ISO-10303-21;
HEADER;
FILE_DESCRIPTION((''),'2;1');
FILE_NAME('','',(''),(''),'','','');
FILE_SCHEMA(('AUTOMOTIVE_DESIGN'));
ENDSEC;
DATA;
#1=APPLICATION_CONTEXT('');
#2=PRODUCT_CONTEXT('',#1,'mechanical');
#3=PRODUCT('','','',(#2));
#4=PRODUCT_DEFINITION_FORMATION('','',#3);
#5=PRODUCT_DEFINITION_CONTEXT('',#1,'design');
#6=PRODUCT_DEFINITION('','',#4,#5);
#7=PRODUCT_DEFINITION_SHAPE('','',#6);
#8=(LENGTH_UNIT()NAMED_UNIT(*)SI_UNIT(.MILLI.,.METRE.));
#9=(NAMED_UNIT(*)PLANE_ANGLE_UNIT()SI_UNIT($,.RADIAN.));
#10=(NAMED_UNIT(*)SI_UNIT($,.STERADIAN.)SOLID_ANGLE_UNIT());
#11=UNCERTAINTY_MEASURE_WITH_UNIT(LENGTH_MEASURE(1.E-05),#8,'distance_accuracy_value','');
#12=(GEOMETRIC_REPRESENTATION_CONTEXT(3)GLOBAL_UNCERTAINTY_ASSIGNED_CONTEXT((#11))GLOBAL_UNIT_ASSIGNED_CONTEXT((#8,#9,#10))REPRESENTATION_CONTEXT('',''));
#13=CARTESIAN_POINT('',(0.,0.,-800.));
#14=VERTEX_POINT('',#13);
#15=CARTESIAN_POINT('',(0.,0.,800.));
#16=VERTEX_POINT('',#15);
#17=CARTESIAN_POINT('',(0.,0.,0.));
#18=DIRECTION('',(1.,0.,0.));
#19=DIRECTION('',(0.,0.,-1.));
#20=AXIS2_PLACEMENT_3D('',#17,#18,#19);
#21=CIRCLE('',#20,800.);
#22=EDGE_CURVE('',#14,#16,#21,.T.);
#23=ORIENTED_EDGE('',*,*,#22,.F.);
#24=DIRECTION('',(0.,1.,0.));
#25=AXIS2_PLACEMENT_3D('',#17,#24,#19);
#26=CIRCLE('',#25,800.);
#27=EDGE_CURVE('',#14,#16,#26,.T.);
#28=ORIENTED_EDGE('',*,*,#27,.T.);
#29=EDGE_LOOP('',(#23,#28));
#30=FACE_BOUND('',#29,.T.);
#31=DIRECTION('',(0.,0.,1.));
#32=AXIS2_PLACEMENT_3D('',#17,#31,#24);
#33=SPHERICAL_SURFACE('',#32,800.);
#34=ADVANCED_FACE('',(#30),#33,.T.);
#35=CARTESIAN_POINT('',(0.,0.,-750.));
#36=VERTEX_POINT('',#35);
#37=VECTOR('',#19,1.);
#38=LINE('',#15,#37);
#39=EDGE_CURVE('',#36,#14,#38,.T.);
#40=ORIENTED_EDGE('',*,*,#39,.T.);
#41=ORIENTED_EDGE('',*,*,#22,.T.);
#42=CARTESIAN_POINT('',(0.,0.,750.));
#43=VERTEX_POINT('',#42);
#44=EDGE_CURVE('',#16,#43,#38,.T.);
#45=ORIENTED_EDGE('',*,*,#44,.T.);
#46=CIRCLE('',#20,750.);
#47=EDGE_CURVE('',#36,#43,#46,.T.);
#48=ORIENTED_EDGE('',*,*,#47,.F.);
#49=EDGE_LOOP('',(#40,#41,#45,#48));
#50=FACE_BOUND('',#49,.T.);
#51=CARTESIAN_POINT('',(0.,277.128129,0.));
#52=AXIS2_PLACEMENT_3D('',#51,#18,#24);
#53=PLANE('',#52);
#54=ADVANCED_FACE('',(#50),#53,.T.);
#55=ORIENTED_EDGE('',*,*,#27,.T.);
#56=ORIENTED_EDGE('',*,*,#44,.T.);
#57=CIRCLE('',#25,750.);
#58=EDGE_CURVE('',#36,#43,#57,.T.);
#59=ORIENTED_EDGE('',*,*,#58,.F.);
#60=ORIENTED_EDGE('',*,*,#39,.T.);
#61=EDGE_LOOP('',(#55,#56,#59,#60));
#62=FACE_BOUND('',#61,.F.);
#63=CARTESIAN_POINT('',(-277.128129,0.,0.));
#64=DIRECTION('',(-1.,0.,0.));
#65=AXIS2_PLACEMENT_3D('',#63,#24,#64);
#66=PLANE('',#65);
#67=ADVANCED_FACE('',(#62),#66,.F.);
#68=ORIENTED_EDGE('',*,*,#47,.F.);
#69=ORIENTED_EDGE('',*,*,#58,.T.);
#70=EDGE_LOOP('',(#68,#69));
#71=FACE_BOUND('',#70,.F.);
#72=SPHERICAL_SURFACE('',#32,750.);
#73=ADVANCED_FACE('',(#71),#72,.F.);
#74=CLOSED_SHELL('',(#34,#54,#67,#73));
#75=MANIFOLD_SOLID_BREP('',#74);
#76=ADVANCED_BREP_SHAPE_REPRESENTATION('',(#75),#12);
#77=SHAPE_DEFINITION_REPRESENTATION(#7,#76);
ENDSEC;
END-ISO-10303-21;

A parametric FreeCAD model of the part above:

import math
import FreeCAD as App
import Part
import Sketcher

V = App.Vector

doc = App.newDocument("Part")
body = doc.addObject("PartDesign::Body", "Body")

# Sketch on XZ plane
sketch1 = body.newObject("Sketcher::SketchObject", "Sketch")
sketch1.AttachmentSupport = (doc.getObject("XZ_Plane"), [""])
sketch1.MapMode = "FlatFace"
sketch1.addGeometry(Part.ArcOfCircle(Part.Circle(V(0, 0, 0), V(0, 0, 1), 750), math.radians(-90), math.radians(90)), False)
sketch1.addGeometry(Part.LineSegment(V(0, 750, 0), V(0, -750, 0)), False)
sketch1.addConstraint(Sketcher.Constraint("Coincident", 0, 1, 1, 2))
sketch1.addConstraint(Sketcher.Constraint("Coincident", 1, 1, 0, 2))
sketch1.addConstraint(Sketcher.Constraint("Vertical", 1))
sketch1.addConstraint(Sketcher.Constraint("Coincident", 0, 3, -1, 1))
sketch1.addConstraint(Sketcher.Constraint("PointOnObject", 1, 1, -2))
sketch1.addConstraint(Sketcher.Constraint("Radius", 0, 750.0))
revolution = body.newObject("PartDesign::Revolution", "Revolution")
revolution.Profile = sketch1
revolution.ReferenceAxis = (sketch1, ["V_Axis"])
revolution.Angle = 90
body2 = doc.addObject("PartDesign::Body", "Body001")
doc.recompute()

body.Placement = App.Placement(V(0, 0, 0), App.Rotation(V(0, 0, 1), 90))
boolean = body2.newObject("PartDesign::Boolean", "Boolean")
boolean.Type = "Fuse"
boolean.addObjects([body])
body3 = doc.addObject("PartDesign::Body", "Body002")

# Sketch on XZ plane
sketch2 = body3.newObject("Sketcher::SketchObject", "Sketch001")
sketch2.AttachmentSupport = (doc.getObject("XZ_Plane002"), [""])
sketch2.MapMode = "FlatFace"
sketch2.addGeometry(Part.ArcOfCircle(Part.Circle(V(0, 0, 0), V(0, 0, 1), 800), math.radians(-90), math.radians(90)), False)
sketch2.addGeometry(Part.LineSegment(V(0, 800, 0), V(0, -800, 0)), False)
sketch2.addConstraint(Sketcher.Constraint("Coincident", 0, 1, 1, 2))
sketch2.addConstraint(Sketcher.Constraint("Coincident", 1, 1, 0, 2))
sketch2.addConstraint(Sketcher.Constraint("Vertical", 1))
sketch2.addConstraint(Sketcher.Constraint("Coincident", 0, 3, -1, 1))
sketch2.addConstraint(Sketcher.Constraint("PointOnObject", 1, 1, -2))
sketch2.addConstraint(Sketcher.Constraint("Radius", 0, 800.0))
revolution2 = body3.newObject("PartDesign::Revolution", "Revolution001")
revolution2.Profile = sketch2
revolution2.ReferenceAxis = (sketch2, ["V_Axis"])
revolution2.Angle = 90
body4 = doc.addObject("PartDesign::Body", "Body003")
doc.recompute()

body3.Placement = App.Placement(V(0, 0, 0), App.Rotation(V(0, 0, 1), 90))
boolean2 = body4.newObject("PartDesign::Boolean", "Boolean001")
boolean2.Type = "Fuse"
boolean2.addObjects([body3])
doc.recompute()

boolean3 = body4.newObject("PartDesign::Boolean", "Boolean002")
boolean3.Type = "Cut"
boolean3.addObjects([body2])

doc.recompute()
